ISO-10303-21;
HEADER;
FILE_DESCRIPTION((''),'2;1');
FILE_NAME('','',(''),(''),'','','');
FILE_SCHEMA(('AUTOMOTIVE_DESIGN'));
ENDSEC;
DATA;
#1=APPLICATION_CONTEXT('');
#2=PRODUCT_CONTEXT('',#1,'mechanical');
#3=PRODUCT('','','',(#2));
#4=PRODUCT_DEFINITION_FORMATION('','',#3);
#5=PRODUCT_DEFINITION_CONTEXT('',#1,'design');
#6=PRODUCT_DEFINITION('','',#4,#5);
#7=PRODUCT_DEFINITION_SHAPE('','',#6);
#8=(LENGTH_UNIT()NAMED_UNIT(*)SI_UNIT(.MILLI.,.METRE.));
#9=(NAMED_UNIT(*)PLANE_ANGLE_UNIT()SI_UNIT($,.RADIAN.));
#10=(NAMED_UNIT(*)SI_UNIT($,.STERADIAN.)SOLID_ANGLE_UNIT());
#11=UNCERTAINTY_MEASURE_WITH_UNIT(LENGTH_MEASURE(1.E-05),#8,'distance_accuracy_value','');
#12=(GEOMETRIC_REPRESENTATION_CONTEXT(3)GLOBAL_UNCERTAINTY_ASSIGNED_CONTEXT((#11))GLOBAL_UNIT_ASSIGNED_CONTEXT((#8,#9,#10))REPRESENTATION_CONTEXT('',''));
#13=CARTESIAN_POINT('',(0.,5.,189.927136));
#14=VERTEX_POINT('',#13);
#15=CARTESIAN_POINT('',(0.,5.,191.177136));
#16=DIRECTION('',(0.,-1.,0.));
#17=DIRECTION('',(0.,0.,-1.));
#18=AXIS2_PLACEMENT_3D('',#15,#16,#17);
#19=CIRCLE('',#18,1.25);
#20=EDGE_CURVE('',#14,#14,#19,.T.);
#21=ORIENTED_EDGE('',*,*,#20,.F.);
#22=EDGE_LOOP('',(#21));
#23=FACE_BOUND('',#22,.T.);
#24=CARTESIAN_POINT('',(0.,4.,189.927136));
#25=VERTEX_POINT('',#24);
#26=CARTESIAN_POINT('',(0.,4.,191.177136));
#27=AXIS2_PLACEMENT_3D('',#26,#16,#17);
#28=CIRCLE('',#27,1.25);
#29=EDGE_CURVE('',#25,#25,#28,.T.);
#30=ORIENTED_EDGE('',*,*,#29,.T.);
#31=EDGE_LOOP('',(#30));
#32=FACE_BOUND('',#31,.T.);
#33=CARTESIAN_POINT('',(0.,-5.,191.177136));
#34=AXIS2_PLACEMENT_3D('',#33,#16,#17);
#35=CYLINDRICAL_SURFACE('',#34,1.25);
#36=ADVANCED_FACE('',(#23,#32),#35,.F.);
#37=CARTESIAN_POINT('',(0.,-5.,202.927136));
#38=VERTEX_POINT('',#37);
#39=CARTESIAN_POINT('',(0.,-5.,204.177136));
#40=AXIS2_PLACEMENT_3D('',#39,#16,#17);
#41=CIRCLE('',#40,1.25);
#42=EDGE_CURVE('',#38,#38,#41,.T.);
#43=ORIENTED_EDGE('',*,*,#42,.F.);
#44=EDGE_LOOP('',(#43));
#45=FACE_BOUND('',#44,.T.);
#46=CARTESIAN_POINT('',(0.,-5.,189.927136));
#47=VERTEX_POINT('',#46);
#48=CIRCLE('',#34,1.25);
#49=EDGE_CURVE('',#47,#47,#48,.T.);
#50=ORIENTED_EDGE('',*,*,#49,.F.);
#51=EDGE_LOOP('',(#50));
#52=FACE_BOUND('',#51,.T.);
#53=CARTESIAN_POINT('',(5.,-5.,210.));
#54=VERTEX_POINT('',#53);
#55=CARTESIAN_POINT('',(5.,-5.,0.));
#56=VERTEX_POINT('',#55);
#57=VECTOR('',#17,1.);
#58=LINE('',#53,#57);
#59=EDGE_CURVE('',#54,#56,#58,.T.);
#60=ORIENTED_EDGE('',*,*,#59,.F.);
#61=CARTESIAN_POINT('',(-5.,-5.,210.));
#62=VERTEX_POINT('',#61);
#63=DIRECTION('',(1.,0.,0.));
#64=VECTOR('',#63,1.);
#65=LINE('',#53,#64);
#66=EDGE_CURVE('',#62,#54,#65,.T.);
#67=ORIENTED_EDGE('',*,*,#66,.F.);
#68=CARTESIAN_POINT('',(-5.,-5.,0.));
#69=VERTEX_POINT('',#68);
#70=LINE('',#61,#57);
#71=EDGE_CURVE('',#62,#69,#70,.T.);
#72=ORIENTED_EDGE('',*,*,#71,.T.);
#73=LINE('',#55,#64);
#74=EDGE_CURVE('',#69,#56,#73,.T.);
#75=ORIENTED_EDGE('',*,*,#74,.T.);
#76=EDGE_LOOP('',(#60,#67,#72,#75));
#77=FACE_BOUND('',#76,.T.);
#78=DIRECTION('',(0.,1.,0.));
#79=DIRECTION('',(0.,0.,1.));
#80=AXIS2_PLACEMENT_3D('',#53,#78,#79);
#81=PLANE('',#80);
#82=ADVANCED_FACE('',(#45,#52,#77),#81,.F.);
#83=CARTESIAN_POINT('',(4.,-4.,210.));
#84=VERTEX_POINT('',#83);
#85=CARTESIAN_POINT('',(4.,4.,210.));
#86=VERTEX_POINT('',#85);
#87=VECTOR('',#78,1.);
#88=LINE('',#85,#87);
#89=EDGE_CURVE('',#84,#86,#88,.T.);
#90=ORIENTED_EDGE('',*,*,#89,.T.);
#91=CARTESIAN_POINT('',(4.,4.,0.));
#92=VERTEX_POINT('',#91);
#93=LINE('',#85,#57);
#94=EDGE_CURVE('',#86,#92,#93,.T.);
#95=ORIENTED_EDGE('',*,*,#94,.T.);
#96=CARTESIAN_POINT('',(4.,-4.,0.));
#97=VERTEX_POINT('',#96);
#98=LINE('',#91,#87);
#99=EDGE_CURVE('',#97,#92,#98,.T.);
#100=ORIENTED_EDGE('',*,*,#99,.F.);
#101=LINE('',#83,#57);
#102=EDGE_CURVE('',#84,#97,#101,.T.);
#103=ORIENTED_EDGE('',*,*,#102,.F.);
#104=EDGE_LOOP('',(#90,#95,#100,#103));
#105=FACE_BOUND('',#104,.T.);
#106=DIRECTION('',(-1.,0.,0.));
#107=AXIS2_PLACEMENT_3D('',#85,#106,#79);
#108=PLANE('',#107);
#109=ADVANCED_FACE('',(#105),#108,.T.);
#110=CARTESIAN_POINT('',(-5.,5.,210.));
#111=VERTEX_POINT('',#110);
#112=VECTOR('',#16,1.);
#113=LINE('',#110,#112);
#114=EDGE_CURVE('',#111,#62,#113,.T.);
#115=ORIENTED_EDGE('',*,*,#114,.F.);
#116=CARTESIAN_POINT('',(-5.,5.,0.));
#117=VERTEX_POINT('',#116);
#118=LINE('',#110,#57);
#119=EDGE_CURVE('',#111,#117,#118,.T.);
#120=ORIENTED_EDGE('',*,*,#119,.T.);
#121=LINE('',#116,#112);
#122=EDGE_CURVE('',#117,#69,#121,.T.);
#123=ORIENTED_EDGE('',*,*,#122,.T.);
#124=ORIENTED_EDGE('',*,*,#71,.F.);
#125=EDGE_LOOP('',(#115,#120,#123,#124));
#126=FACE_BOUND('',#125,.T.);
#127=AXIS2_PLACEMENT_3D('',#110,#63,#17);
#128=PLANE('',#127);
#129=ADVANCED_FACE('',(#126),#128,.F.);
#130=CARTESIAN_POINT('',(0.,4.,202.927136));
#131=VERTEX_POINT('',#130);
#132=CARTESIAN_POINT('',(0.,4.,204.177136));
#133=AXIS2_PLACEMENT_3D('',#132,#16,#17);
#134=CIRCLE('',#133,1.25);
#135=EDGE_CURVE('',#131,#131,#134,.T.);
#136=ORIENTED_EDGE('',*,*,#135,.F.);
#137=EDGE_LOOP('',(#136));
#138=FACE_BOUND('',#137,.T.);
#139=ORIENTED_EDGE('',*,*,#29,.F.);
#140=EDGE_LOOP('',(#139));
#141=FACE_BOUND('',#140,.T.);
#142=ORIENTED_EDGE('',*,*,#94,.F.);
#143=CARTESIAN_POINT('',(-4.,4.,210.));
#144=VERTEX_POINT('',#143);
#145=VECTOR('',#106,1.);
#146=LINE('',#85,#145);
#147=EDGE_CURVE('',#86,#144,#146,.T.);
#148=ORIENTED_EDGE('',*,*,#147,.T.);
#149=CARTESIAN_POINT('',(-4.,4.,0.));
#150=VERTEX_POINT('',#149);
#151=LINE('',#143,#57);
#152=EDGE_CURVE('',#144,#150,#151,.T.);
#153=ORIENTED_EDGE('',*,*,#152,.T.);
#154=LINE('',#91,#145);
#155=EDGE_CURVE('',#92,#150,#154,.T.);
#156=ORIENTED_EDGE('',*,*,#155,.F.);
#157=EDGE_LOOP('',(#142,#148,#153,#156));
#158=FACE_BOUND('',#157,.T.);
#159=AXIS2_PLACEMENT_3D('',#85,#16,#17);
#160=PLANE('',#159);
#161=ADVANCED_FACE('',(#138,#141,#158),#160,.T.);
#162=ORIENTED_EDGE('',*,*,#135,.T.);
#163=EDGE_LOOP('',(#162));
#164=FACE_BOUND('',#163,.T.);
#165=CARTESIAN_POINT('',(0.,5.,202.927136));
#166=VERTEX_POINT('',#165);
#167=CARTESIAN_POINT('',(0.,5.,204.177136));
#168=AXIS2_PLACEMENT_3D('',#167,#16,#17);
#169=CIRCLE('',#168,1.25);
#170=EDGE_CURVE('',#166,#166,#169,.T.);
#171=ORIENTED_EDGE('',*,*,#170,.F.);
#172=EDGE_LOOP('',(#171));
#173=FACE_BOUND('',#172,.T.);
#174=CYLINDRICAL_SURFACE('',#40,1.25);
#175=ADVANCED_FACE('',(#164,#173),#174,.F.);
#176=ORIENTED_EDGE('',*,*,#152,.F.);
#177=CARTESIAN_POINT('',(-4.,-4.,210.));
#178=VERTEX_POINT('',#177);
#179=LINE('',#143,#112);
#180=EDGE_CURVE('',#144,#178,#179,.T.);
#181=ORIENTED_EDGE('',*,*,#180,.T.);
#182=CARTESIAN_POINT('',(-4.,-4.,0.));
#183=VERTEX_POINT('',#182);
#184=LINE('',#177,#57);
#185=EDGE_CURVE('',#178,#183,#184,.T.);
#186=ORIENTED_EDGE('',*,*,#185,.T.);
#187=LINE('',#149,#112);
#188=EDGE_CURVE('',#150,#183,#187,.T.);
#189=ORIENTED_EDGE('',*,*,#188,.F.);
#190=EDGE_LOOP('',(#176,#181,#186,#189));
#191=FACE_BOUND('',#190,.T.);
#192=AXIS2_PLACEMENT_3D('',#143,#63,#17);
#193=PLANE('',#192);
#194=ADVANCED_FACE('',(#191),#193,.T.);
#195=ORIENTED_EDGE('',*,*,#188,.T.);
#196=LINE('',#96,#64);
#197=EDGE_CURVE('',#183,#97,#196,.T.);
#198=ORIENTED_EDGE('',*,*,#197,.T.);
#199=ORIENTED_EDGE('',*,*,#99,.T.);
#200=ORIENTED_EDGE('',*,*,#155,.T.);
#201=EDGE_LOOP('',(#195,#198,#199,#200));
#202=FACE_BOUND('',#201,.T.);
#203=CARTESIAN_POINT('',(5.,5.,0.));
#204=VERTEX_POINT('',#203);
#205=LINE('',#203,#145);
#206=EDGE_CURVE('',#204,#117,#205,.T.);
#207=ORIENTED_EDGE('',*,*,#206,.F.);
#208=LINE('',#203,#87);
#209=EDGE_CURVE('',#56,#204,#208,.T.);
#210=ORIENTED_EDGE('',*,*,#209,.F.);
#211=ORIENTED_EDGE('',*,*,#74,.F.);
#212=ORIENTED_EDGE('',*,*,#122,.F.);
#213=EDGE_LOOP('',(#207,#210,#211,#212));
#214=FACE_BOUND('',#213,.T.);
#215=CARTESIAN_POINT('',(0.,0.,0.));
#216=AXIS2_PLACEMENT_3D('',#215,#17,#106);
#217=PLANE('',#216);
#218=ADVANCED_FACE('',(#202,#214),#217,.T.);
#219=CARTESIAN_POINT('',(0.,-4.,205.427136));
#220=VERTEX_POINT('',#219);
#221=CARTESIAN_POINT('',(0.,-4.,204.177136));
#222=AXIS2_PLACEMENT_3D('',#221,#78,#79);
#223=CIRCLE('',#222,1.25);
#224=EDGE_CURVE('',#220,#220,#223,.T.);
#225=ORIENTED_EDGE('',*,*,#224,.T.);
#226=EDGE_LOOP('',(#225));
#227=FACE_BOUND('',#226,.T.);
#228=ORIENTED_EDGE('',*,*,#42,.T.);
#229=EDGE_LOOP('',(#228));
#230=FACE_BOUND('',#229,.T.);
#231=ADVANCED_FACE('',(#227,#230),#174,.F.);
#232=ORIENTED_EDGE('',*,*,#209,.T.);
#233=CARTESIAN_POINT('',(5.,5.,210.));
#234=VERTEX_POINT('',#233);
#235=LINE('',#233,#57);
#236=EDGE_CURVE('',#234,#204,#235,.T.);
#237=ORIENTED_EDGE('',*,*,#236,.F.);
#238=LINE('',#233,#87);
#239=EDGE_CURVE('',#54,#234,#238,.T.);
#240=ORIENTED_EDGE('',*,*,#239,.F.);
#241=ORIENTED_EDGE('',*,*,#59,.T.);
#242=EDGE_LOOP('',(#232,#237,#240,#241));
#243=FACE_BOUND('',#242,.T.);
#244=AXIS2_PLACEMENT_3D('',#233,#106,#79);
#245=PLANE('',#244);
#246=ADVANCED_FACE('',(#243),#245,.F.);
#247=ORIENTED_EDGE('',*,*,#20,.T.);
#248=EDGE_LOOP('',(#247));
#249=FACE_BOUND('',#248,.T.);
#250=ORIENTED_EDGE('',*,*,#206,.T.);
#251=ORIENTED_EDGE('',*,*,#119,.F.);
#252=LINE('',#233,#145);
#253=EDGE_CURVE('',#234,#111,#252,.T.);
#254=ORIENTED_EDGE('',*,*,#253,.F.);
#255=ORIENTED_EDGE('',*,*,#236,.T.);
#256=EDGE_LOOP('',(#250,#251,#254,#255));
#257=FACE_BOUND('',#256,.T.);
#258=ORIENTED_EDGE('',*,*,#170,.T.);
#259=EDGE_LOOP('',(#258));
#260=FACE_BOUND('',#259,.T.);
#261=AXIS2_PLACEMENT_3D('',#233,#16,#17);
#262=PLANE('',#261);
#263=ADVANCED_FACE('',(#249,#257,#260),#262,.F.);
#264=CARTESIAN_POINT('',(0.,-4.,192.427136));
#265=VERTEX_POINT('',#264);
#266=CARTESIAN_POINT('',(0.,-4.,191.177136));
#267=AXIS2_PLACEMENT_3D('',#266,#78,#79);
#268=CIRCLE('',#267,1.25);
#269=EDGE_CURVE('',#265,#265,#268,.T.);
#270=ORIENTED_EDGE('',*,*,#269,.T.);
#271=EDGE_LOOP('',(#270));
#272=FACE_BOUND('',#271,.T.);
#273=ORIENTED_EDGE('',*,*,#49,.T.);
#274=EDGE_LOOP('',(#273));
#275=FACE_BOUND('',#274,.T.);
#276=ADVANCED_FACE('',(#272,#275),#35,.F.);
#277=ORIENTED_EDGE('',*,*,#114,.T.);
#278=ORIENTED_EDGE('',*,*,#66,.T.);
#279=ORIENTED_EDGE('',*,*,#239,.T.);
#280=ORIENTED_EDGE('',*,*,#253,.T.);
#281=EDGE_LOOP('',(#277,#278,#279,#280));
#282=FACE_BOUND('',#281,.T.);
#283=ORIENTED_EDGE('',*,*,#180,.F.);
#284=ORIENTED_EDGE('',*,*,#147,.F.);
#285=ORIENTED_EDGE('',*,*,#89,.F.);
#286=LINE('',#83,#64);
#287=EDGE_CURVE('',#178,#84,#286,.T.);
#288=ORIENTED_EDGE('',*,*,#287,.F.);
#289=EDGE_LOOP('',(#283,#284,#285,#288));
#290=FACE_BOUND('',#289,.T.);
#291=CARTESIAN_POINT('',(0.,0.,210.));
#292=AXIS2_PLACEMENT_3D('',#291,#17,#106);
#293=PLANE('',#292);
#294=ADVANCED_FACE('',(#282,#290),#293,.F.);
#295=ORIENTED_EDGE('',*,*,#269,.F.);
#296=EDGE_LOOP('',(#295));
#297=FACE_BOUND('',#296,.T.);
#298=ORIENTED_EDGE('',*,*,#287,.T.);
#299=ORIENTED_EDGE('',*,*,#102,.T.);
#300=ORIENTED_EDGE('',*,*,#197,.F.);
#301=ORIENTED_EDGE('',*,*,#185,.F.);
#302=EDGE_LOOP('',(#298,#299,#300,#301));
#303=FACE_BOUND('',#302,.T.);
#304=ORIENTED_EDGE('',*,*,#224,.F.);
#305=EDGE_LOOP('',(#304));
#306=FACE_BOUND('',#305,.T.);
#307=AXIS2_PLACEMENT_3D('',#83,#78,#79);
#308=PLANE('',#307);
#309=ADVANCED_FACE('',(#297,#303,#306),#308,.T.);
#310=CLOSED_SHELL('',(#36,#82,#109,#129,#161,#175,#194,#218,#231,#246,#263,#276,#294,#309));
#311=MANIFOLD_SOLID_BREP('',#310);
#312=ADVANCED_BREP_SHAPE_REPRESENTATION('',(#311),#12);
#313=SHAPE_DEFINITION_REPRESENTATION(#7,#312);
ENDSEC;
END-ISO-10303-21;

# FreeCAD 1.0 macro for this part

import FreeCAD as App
import Part
import Sketcher


def add_polygon(sketch, points):
    """Adds a closed chain of lines whose ends are joined by coincident constraints."""
    first, n = sketch.GeometryCount, len(points)
    for a, b in zip(points, points[1:] + points[:1]):
        sketch.addGeometry(Part.LineSegment(App.Vector(*a, 0), App.Vector(*b, 0)), False)
    for i in range(n):
        sketch.addConstraint(Sketcher.Constraint("Coincident", first + i, 2, first + (i + 1) % n, 1))

doc = App.newDocument("Part")
body = doc.addObject("PartDesign::Body", "Body")

sketch1 = doc.addObject("Sketcher::SketchObject", "Sketch")
body.addObject(sketch1)
sketch1.AttachmentSupport = (doc.XY_Plane, [""])
sketch1.MapMode = "FlatFace"
add_polygon(sketch1, [(-5, 5), (-5, -5), (5, -5), (5, 5)])
add_polygon(sketch1, [(4, -4), (-4, -4), (-4, 4), (4, 4)])
sketch1.addConstraint([
    Sketcher.Constraint("Vertical", 0),
    Sketcher.Constraint("Horizontal", 1),
    Sketcher.Constraint("Vertical", 2),
    Sketcher.Constraint("Horizontal", 3),
    Sketcher.Constraint("Horizontal", 4),
    Sketcher.Constraint("Vertical", 5),
    Sketcher.Constraint("Horizontal", 6),
    Sketcher.Constraint("Vertical", 7),
    Sketcher.Constraint("Symmetric", 0, 2, 2, 2, -1, 1),
    Sketcher.Constraint("Symmetric", 4, 2, 6, 2, -1, 1),
    Sketcher.Constraint("Equal", 3, 0),
    Sketcher.Constraint("Equal", 6, 5),
    Sketcher.Constraint("DistanceX", 1, 1, 1, 2, 10.0),
    Sketcher.Constraint("DistanceX", 4, 2, 4, 1, 8.0),
])
pad1 = doc.addObject("PartDesign::Pad", "Pad")
body.addObject(pad1)
pad1.Profile = sketch1
pad1.Length = 210

sketch2 = doc.addObject("Sketcher::SketchObject", "Sketch001")
body.addObject(sketch2)
sketch2.AttachmentSupport = (doc.XZ_Plane, [""])
sketch2.MapMode = "FlatFace"
sketch2.AttachmentOffset = App.Placement(App.Vector(0, 0, 5), App.Rotation())
sketch2.addGeometry([
    Part.Circle(App.Vector(0, 204.177136, 0), App.Vector(0, 0, 1), 1.25),
    Part.Circle(App.Vector(0, 191.177136, 0), App.Vector(0, 0, 1), 1.25),
    Part.Circle(App.Vector(130, 204.177136, 0), App.Vector(0, 0, 1), 1.25),
    Part.Circle(App.Vector(130, 191.177136, 0), App.Vector(0, 0, 1), 1.25),
], False)
sketch2.addConstraint([
    Sketcher.Constraint("Equal", 0, 1),
    Sketcher.Constraint("Equal", 1, 2),
    Sketcher.Constraint("Equal", 2, 3),
    Sketcher.Constraint("PointOnObject", 0, 3, -2),
    Sketcher.Constraint("PointOnObject", 1, 3, -2),
    Sketcher.Constraint("Horizontal", 0, 3, 2, 3),
    Sketcher.Constraint("Horizontal", 1, 3, 3, 3),
    Sketcher.Constraint("Vertical", 2, 3, 3, 3),
    Sketcher.Constraint("Diameter", 0, 2.5),
    Sketcher.Constraint("DistanceX", -1, 1, 2, 3, 130.0),
    Sketcher.Constraint("DistanceY", 1, 3, 0, 3, 13.0),
    Sketcher.Constraint("DistanceY", -1, 1, 0, 3, 204.177136),
])
doc.recompute()
hole = doc.addObject("PartDesign::Hole", "Hole")
body.addObject(hole)
hole.Profile = sketch2
hole.ThreadType = "None"
hole.Diameter = 2.5
hole.DepthType = "ThroughAll"

doc.recompute()
